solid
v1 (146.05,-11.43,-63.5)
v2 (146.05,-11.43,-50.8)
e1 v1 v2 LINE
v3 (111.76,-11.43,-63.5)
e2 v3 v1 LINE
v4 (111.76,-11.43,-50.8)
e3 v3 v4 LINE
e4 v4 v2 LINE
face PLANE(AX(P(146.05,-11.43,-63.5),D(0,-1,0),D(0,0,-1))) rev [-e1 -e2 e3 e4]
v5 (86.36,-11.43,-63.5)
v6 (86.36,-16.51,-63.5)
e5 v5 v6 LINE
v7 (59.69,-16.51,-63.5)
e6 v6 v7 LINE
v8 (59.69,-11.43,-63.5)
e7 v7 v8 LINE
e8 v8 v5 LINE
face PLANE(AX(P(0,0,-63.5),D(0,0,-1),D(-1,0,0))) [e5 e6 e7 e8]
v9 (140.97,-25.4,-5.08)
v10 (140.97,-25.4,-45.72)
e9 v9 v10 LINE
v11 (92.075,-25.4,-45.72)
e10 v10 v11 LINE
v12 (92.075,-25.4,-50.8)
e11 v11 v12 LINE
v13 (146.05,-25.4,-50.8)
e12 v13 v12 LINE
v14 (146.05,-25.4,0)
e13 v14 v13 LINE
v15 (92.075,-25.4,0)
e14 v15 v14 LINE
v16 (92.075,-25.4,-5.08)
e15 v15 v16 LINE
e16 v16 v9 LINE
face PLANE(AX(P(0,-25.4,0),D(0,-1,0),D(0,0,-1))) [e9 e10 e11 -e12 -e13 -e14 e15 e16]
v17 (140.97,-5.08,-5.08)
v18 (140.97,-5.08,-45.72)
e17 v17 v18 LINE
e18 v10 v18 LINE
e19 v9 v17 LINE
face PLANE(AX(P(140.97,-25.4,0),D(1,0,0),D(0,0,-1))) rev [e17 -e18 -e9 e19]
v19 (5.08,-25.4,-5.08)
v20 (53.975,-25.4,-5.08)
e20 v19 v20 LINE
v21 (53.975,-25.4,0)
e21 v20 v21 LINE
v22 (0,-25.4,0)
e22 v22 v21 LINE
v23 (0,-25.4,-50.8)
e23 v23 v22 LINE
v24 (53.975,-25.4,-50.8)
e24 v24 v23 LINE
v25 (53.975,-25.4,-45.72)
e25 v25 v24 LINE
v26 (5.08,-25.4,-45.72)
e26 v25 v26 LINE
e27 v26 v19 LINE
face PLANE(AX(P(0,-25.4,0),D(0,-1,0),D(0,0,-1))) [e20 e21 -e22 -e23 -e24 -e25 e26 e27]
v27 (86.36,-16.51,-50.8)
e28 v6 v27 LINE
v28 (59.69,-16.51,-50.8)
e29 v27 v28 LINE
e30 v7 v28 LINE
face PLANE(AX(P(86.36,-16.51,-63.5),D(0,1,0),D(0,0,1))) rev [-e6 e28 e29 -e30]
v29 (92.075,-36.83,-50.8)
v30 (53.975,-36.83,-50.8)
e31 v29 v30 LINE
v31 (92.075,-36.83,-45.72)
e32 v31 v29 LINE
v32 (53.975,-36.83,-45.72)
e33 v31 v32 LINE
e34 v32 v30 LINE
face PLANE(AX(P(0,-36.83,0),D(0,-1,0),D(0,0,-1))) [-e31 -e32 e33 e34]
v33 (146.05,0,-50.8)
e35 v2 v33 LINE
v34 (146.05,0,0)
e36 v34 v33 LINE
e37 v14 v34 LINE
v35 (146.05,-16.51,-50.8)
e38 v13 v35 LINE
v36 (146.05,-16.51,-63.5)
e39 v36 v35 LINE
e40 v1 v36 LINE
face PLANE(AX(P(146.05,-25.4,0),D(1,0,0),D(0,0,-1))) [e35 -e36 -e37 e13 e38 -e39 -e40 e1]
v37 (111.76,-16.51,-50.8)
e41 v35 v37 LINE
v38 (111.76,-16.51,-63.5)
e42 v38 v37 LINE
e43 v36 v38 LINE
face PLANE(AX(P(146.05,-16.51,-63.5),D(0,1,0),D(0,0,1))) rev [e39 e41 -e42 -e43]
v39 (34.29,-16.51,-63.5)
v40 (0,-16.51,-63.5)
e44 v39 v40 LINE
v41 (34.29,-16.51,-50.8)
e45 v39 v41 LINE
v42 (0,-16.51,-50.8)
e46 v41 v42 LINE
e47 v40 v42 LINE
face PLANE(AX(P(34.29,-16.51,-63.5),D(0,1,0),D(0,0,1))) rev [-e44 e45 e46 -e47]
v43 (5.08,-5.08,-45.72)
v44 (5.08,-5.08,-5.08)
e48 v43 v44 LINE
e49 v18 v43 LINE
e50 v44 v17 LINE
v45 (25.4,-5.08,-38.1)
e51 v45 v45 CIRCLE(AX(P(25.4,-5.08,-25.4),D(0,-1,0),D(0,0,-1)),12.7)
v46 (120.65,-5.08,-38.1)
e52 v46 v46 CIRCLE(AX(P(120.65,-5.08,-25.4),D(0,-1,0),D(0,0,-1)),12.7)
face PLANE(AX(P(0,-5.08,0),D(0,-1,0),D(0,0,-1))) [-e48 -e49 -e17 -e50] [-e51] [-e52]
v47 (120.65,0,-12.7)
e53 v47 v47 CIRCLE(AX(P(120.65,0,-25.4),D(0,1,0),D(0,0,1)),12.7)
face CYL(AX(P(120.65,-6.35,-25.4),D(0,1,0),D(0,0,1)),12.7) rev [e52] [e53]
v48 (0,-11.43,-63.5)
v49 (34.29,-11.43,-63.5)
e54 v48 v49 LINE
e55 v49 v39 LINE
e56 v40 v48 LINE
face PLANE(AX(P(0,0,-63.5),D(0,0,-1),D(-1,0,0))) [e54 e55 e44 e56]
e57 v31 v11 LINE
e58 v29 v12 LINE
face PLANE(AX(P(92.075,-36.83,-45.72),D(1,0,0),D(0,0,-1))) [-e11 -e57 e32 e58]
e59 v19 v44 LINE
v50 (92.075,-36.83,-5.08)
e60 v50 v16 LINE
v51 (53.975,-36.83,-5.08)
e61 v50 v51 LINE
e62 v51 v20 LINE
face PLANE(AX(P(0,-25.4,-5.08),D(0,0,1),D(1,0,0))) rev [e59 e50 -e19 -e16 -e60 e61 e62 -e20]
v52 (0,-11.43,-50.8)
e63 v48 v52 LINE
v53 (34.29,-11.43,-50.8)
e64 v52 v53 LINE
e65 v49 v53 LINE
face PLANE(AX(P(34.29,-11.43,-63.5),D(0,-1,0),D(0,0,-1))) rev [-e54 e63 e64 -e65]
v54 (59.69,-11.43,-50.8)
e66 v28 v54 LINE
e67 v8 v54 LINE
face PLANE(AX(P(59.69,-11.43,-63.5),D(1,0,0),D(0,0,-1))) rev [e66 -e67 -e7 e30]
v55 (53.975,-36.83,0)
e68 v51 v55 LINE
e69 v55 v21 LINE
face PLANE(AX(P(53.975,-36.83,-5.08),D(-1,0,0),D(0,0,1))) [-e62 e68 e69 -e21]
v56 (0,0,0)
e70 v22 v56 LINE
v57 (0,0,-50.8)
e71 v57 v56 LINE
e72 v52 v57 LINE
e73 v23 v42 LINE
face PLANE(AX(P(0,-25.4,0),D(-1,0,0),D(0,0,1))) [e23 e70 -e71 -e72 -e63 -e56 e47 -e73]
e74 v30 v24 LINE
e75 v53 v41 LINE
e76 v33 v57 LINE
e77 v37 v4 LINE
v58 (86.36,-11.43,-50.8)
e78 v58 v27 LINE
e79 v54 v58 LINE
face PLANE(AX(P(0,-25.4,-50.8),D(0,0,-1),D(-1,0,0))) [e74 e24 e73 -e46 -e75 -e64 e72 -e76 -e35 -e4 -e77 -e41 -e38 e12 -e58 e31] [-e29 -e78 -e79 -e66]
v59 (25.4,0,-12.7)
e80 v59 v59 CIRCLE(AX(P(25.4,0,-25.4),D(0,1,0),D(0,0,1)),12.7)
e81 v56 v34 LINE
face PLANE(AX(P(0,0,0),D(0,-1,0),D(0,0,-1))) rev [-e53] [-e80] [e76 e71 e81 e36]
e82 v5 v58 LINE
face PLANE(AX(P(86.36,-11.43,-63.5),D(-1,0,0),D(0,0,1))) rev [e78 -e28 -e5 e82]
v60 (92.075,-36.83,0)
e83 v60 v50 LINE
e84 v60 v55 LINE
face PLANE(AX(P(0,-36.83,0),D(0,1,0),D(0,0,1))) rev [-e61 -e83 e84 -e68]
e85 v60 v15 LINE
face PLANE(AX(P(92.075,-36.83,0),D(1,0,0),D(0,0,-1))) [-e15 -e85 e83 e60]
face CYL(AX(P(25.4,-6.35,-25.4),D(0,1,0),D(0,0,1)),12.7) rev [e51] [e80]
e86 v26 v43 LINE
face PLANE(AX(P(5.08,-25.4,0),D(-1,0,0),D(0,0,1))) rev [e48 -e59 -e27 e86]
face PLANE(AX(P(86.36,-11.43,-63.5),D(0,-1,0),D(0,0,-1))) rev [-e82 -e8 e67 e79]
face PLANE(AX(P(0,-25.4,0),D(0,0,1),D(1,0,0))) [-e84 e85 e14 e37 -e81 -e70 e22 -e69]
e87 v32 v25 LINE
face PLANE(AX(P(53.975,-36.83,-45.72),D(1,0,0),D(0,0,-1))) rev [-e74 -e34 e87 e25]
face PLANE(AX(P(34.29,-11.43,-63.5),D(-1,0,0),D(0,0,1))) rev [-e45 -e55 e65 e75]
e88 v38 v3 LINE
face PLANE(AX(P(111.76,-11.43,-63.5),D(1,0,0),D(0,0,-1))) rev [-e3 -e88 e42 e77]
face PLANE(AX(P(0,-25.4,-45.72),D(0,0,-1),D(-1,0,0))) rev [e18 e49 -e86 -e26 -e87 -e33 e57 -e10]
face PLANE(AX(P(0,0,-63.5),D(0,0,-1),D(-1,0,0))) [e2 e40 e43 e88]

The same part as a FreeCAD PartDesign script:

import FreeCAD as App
import Part
import Sketcher
from FreeCAD import Vector
Q = App.Units.Quantity


def faces_at(feature, points):
    """Names of the faces that lie closest to the given points."""
    faces = feature.Shape.Faces
    near = lambda p: min(range(len(faces)), key=lambda i: faces[i].distToShape(Part.Vertex(*p))[0])
    return sorted({f"Face{near(p) + 1}" for p in points})

doc = App.newDocument("Part")
body = doc.addObject("PartDesign::Body", "Body")

sketch1 = body.newObject("Sketcher::SketchObject", "Sketch")
sketch1.AttachmentSupport = (doc.getObject("XZ_Plane"), [""])
sketch1.MapMode = "FlatFace"
sketch1.addGeometry(Part.LineSegment(Vector(0, -51, 0), Vector(0, 0, 0)), False)
sketch1.addGeometry(Part.LineSegment(Vector(0, 0, 0), Vector(146, 0, 0)), False)
sketch1.addGeometry(Part.LineSegment(Vector(146, 0, 0), Vector(146, -51, 0)), False)
sketch1.addGeometry(Part.LineSegment(Vector(146, -51, 0), Vector(0, -51, 0)), False)
sketch1.addConstraint(Sketcher.Constraint("Coincident", 0, 2, 1, 1))
sketch1.addConstraint(Sketcher.Constraint("Coincident", 1, 2, 2, 1))
sketch1.addConstraint(Sketcher.Constraint("Coincident", 2, 2, 3, 1))
sketch1.addConstraint(Sketcher.Constraint("Coincident", 3, 2, 0, 1))
sketch1.addConstraint(Sketcher.Constraint("Vertical", 0))
sketch1.addConstraint(Sketcher.Constraint("Horizontal", 1))
sketch1.addConstraint(Sketcher.Constraint("Vertical", 2))
sketch1.addConstraint(Sketcher.Constraint("Horizontal", 3))
sketch1.addConstraint(Sketcher.Constraint("Coincident", 0, 2, -1, 1))
sketch1.addConstraint(Sketcher.Constraint("DistanceY", 0, 1, 0, 2, Q("2 in")))
sketch1.addConstraint(Sketcher.Constraint("DistanceX", 1, 1, 1, 2, Q("5.75 in")))
pad1 = body.newObject("PartDesign::Pad", "Pad")
pad1.Profile = sketch1
pad1.Length = Q("1 in")
doc.recompute()

thickness = body.newObject("PartDesign::Thickness", "Thickness")
thickness.Base = (pad1, faces_at(pad1, [(73.025, -25.4, -25.4)]))
thickness.Value = Q("0.2 in")
thickness.Reversed = True
thickness.Join = "Intersection"

sketch2 = body.newObject("Sketcher::SketchObject", "Sketch001")
sketch2.AttachmentSupport = (doc.getObject("XZ_Plane"), [""])
sketch2.MapMode = "FlatFace"
sketch2.addGeometry(Part.Circle(Vector(25, -25, 0), Vector(0, 0, 1), 13), False)
sketch2.addGeometry(Part.Circle(Vector(121, -25, 0), Vector(0, 0, 1), 13), False)
sketch2.addConstraint(Sketcher.Constraint("Equal", 0, 1))
sketch2.addConstraint(Sketcher.Constraint("Horizontal", 0, 3, 1, 3))
sketch2.addConstraint(Sketcher.Constraint("Diameter", 0, Q("1 in")))
sketch2.addConstraint(Sketcher.Constraint("DistanceX", -1, 1, 0, 3, Q("1 in")))
sketch2.addConstraint(Sketcher.Constraint("DistanceY", 0, 3, -1, 1, Q("1 in")))
sketch2.addConstraint(Sketcher.Constraint("DistanceX", -1, 1, 1, 3, Q("4.75 in")))
pocket1 = body.newObject("PartDesign::Pocket", "Pocket")
pocket1.Profile = sketch2
pocket1.Length = Q("0.25 in")
pocket1.Reversed = True

sketch3 = body.newObject("Sketcher::SketchObject", "Sketch002")
sketch3.AttachmentSupport = (doc.getObject("XZ_Plane"), [""])
sketch3.MapMode = "FlatFace"
sketch3.AttachmentOffset = App.Placement(Vector(0, 0, 1 * 25.4), App.Rotation())
sketch3.addGeometry(Part.LineSegment(Vector(92, -5, 0), Vector(92, 0, 0)), False)
sketch3.addGeometry(Part.LineSegment(Vector(92, 0, 0), Vector(54, 0, 0)), False)
sketch3.addGeometry(Part.LineSegment(Vector(54, 0, 0), Vector(54, -5, 0)), False)
sketch3.addGeometry(Part.LineSegment(Vector(54, -5, 0), Vector(92, -5, 0)), False)
sketch3.addGeometry(Part.LineSegment(Vector(92, -51, 0), Vector(92, -46, 0)), False)
sketch3.addGeometry(Part.LineSegment(Vector(92, -46, 0), Vector(54, -46, 0)), False)
sketch3.addGeometry(Part.LineSegment(Vector(54, -46, 0), Vector(54, -51, 0)), False)
sketch3.addGeometry(Part.LineSegment(Vector(54, -51, 0), Vector(92, -51, 0)), False)
sketch3.addConstraint(Sketcher.Constraint("Coincident", 0, 2, 1, 1))
sketch3.addConstraint(Sketcher.Constraint("Coincident", 1, 2, 2, 1))
sketch3.addConstraint(Sketcher.Constraint("Coincident", 2, 2, 3, 1))
sketch3.addConstraint(Sketcher.Constraint("Coincident", 3, 2, 0, 1))
sketch3.addConstraint(Sketcher.Constraint("Coincident", 4, 2, 5, 1))
sketch3.addConstraint(Sketcher.Constraint("Coincident", 5, 2, 6, 1))
sketch3.addConstraint(Sketcher.Constraint("Coincident", 6, 2, 7, 1))
sketch3.addConstraint(Sketcher.Constraint("Coincident", 7, 2, 4, 1))
sketch3.addConstraint(Sketcher.Constraint("Vertical", 0))
sketch3.addConstraint(Sketcher.Constraint("Horizontal", 1))
sketch3.addConstraint(Sketcher.Constraint("Vertical", 2))
sketch3.addConstraint(Sketcher.Constraint("Horizontal", 3))
sketch3.addConstraint(Sketcher.Constraint("Vertical", 4))
sketch3.addConstraint(Sketcher.Constraint("Horizontal", 5))
sketch3.addConstraint(Sketcher.Constraint("Vertical", 6))
sketch3.addConstraint(Sketcher.Constraint("Horizontal", 7))
sketch3.addConstraint(Sketcher.Constraint("PointOnObject", 0, 2, -1))
sketch3.addConstraint(Sketcher.Constraint("Vertical", 3, 2, 4, 2))
sketch3.addConstraint(Sketcher.Constraint("Vertical", 2, 2, 5, 2))
sketch3.addConstraint(Sketcher.Constraint("Equal", 2, 4))
sketch3.addConstraint(Sketcher.Constraint("DistanceX", 1, 2, 1, 1, Q("1.5 in")))
sketch3.addConstraint(Sketcher.Constraint("DistanceY", 0, 1, 0, 2, Q("0.2 in")))
sketch3.addConstraint(Sketcher.Constraint("DistanceY", 6, 2, -1, 1, Q("2 in")))
sketch3.addConstraint(Sketcher.Constraint("DistanceX", -1, 1, 0, 2, Q("3.625 in")))
pad2 = body.newObject("PartDesign::Pad", "Pad001")
pad2.Profile = sketch3
pad2.Length = Q("0.45 in")

sketch4 = body.newObject("Sketcher::SketchObject", "Sketch003")
sketch4.AttachmentSupport = (doc.getObject("XY_Plane"), [""])
sketch4.MapMode = "FlatFace"
sketch4.AttachmentOffset = App.Placement(Vector(0, 0, -2 * 25.4), App.Rotation())
sketch4.addGeometry(Part.LineSegment(Vector(146, -11, 0), Vector(146, -17, 0)), False)
sketch4.addGeometry(Part.LineSegment(Vector(146, -17, 0), Vector(112, -17, 0)), False)
sketch4.addGeometry(Part.LineSegment(Vector(112, -17, 0), Vector(112, -11, 0)), False)
sketch4.addGeometry(Part.LineSegment(Vector(112, -11, 0), Vector(146, -11, 0)), False)
sketch4.addGeometry(Part.LineSegment(Vector(86, -11, 0), Vector(86, -17, 0)), False)
sketch4.addGeometry(Part.LineSegment(Vector(86, -17, 0), Vector(60, -17, 0)), False)
sketch4.addGeometry(Part.LineSegment(Vector(60, -17, 0), Vector(60, -11, 0)), False)
sketch4.addGeometry(Part.LineSegment(Vector(60, -11, 0), Vector(86, -11, 0)), False)
sketch4.addGeometry(Part.LineSegment(Vector(34, -11, 0), Vector(34, -17, 0)), False)
sketch4.addGeometry(Part.LineSegment(Vector(34, -17, 0), Vector(0, -17, 0)), False)
sketch4.addGeometry(Part.LineSegment(Vector(0, -17, 0), Vector(0, -11, 0)), False)
sketch4.addGeometry(Part.LineSegment(Vector(0, -11, 0), Vector(34, -11, 0)), False)
sketch4.addConstraint(Sketcher.Constraint("Coincident", 0, 2, 1, 1))
sketch4.addConstraint(Sketcher.Constraint("Coincident", 1, 2, 2, 1))
sketch4.addConstraint(Sketcher.Constraint("Coincident", 2, 2, 3, 1))
sketch4.addConstraint(Sketcher.Constraint("Coincident", 3, 2, 0, 1))
sketch4.addConstraint(Sketcher.Constraint("Coincident", 4, 2, 5, 1))
sketch4.addConstraint(Sketcher.Constraint("Coincident", 5, 2, 6, 1))
sketch4.addConstraint(Sketcher.Constraint("Coincident", 6, 2, 7, 1))
sketch4.addConstraint(Sketcher.Constraint("Coincident", 7, 2, 4, 1))
sketch4.addConstraint(Sketcher.Constraint("Coincident", 8, 2, 9, 1))
sketch4.addConstraint(Sketcher.Constraint("Coincident", 9, 2, 10, 1))
sketch4.addConstraint(Sketcher.Constraint("Coincident", 10, 2, 11, 1))
sketch4.addConstraint(Sketcher.Constraint("Coincident", 11, 2, 8, 1))
sketch4.addConstraint(Sketcher.Constraint("Vertical", 0))
sketch4.addConstraint(Sketcher.Constraint("Horizontal", 1))
sketch4.addConstraint(Sketcher.Constraint("Vertical", 2))
sketch4.addConstraint(Sketcher.Constraint("Horizontal", 3))
sketch4.addConstraint(Sketcher.Constraint("Vertical", 4))
sketch4.addConstraint(Sketcher.Constraint("Horizontal", 5))
sketch4.addConstraint(Sketcher.Constraint("Vertical", 6))
sketch4.addConstraint(Sketcher.Constraint("Horizontal", 7))
sketch4.addConstraint(Sketcher.Constraint("Vertical", 8))
sketch4.addConstraint(Sketcher.Constraint("Horizontal", 9))
sketch4.addConstraint(Sketcher.Constraint("Vertical", 10))
sketch4.addConstraint(Sketcher.Constraint("Horizontal", 11))
sketch4.addConstraint(Sketcher.Constraint("PointOnObject", 9, 2, -2))
sketch4.addConstraint(Sketcher.Constraint("Horizontal", 1, 2, 4, 2))
sketch4.addConstraint(Sketcher.Constraint("Horizontal", 3, 2, 6, 2))
sketch4.addConstraint(Sketcher.Constraint("Horizontal", 5, 2, 8, 2))
sketch4.addConstraint(Sketcher.Constraint("Horizontal", 7, 2, 10, 2))
sketch4.addConstraint(Sketcher.Constraint("Equal", 3, 9))
sketch4.addConstraint(Sketcher.Constraint("DistanceY", 0, 2, 0, 1, Q("0.2 in")))
sketch4.addConstraint(Sketcher.Constraint("DistanceX", 4, 2, 1, 2, Q("1 in")))
sketch4.addConstraint(Sketcher.Constraint("DistanceX", 8, 2, 5, 2, Q("1 in")))
sketch4.addConstraint(Sketcher.Constraint("DistanceX", 1, 2, 1, 1, Q("1.35 in")))
sketch4.addConstraint(Sketcher.Constraint("DistanceX", 5, 2, 5, 1, Q("1.05 in")))
sketch4.addConstraint(Sketcher.Constraint("DistanceY", 0, 2, -1, 1, Q("0.65 in")))
pad3 = body.newObject("PartDesign::Pad", "Pad002")
pad3.Profile = sketch4
pad3.Length = Q("0.5 in")
pad3.Reversed = True

doc.recompute()
